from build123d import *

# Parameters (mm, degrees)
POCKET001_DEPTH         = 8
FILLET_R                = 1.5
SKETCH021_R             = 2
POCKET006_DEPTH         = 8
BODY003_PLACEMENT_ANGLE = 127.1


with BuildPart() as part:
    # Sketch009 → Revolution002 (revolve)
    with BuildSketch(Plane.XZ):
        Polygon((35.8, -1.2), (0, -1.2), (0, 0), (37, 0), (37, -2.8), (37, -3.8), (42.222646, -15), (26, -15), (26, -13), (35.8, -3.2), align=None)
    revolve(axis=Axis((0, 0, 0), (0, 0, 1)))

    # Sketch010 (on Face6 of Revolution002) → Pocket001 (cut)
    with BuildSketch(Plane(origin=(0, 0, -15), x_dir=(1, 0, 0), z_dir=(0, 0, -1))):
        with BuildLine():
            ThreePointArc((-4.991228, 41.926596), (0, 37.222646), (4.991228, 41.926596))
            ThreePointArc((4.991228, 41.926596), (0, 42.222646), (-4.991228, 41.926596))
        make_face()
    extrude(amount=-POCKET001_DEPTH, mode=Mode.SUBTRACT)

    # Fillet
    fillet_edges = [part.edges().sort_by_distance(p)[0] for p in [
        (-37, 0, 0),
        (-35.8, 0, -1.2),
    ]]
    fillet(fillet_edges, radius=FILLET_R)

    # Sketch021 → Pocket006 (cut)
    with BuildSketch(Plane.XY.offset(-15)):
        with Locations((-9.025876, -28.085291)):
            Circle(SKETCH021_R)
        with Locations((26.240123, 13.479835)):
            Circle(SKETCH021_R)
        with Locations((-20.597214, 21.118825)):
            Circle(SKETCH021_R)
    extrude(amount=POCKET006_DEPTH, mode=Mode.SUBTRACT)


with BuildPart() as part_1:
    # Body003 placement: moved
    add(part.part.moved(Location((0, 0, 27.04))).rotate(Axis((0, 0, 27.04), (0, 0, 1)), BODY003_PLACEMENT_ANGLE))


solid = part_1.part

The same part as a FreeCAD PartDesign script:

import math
import FreeCAD as App
import Part
import Sketcher
Q = App.Units.Quantity


def edges_at(feature, points):
    """Names of the edges that pass closest to the given points."""
    edges = feature.Shape.Edges
    near = lambda p: min(range(len(edges)), key=lambda i: edges[i].distToShape(Part.Vertex(*p))[0])
    return sorted({f"Edge{near(p) + 1}" for p in points})

doc = App.newDocument("Part")
params = doc.addObject("Spreadsheet::Sheet", "Params")
for row, (alias, value) in enumerate([
    ("sketch1_width", "37 mm"),
    ("sketch1_height", "2 mm"),
    ("sketch1_width2", "35.8 mm"),
    ("sketch1_height2", "3.8 mm"),
    ("sketch1_height3", "1.2 mm"),
    ("revolution_angle", "360 deg"),
    ("sketch2_radius", "5 mm"),
    ("pocket1_length", "8 mm"),
    ("fillet_radius", "1.5 mm"),
    ("sketch3_diameter", "4 mm"),
    ("pocket2_length", "8 mm"),
], start=1):
    params.set(f"A{row}", alias)
    params.set(f"B{row}", "=" + value)
    params.setAlias(f"B{row}", alias)

body = doc.addObject("PartDesign::Body", "Body")

# Sketch on XZ plane
sketch1 = body.newObject("Sketcher::SketchObject", "Sketch")
sketch1.AttachmentSupport = (doc.getObject("XZ_Plane"), [""])
sketch1.MapMode = "FlatFace"
sketch1.addGeometry([
    Part.LineSegment(App.Vector(0, -1.2, 0), App.Vector(35.8, -1.2, 0)),  # 0
    Part.LineSegment(App.Vector(35.8, -1.2, 0), App.Vector(35.8, -3.2, 0)),  # 1
    Part.LineSegment(App.Vector(35.8, -3.2, 0), App.Vector(26, -13, 0)),  # 2
    Part.LineSegment(App.Vector(26, -13, 0), App.Vector(26, -15, 0)),  # 3
    Part.LineSegment(App.Vector(26, -15, 0), App.Vector(42.2, -15, 0)),  # 4
    Part.LineSegment(App.Vector(42.2, -15, 0), App.Vector(37, -3.8, 0)),  # 5
    Part.LineSegment(App.Vector(37, -3.8, 0), App.Vector(37, 0, 0)),  # 6
    Part.LineSegment(App.Vector(37, 0, 0), App.Vector(0, 0, 0)),  # 7
    Part.LineSegment(App.Vector(0, 0, 0), App.Vector(0, -1.2, 0)),  # 8
], False)
sketch1.addConstraint([
    Sketcher.Constraint("Coincident", 0, 2, 1, 1),
    Sketcher.Constraint("Coincident", 1, 2, 2, 1),
    Sketcher.Constraint("Coincident", 2, 2, 3, 1),
    Sketcher.Constraint("Coincident", 3, 2, 4, 1),
    Sketcher.Constraint("Coincident", 4, 2, 5, 1),
    Sketcher.Constraint("Coincident", 5, 2, 6, 1),
    Sketcher.Constraint("Coincident", 6, 2, 7, 1),
    Sketcher.Constraint("Coincident", 7, 2, 8, 1),
    Sketcher.Constraint("Coincident", 8, 2, 0, 1),
    Sketcher.Constraint("Horizontal", 0),
    Sketcher.Constraint("Vertical", 1),
    Sketcher.Constraint("Vertical", 3),
    Sketcher.Constraint("Horizontal", 4),
    Sketcher.Constraint("Vertical", 6),
    Sketcher.Constraint("Horizontal", 7),
    Sketcher.Constraint("Vertical", 8),
    Sketcher.Constraint("Coincident", 7, 2, -1, 1),
    Sketcher.Constraint("Equal", 1, 3),
    Sketcher.Constraint("DistanceX", 7, 2, 7, 1, 37.0),
    Sketcher.Constraint("DistanceY", 1, 2, 1, 1, 2.0),
    Sketcher.Constraint("Angle", 2, Q("-135 deg")),
    Sketcher.Constraint("Angle", 5, Q("115.000001 deg")),
    Sketcher.Constraint("DistanceX", 0, 1, 0, 2, 35.8),
    Sketcher.Constraint("DistanceY", 6, 1, 6, 2, 3.8),
    Sketcher.Constraint("DistanceY", 8, 2, 8, 1, 1.2),
    Sketcher.Constraint("DistanceX", -1, 1, 2, 2, 26.0),
])
sketch1.setExpression("Constraints[18]", "Params.sketch1_width")
sketch1.setExpression("Constraints[19]", "Params.sketch1_height")
sketch1.setExpression("Constraints[22]", "Params.sketch1_width2")
sketch1.setExpression("Constraints[23]", "Params.sketch1_height2")
sketch1.setExpression("Constraints[24]", "Params.sketch1_height3")
revolution = body.newObject("PartDesign::Revolution", "Revolution")
revolution.Profile = sketch1
revolution.ReferenceAxis = (sketch1, ["V_Axis"])
revolution.setExpression("Angle", "Params.revolution_angle")

# Sketch on XY plane
sketch2 = body.newObject("Sketcher::SketchObject", "Sketch001")
sketch2.AttachmentSupport = (doc.getObject("XY_Plane"), [""])
sketch2.MapMode = "FlatFace"
sketch2.AttachmentOffset = App.Placement(App.Vector(0, 0, -15), App.Rotation())
sketch2.addGeometry([
    Part.ArcOfCircle(Part.Circle(App.Vector(0, -42, 0), App.Vector(0, 0, 1), 5), math.radians(3), math.radians(177)),
    Part.ArcOfCircle(Part.Circle(App.Vector(0, 0, 0), App.Vector(0, 0, 1), 42), math.radians(-96.79), math.radians(-83.21)),
], False)
sketch2.addConstraint([
    Sketcher.Constraint("Coincident", 0, 1, 1, 2),
    Sketcher.Constraint("Coincident", 1, 1, 0, 2),
    Sketcher.Constraint("Symmetric", 0, 1, 1, 1, -2),
    Sketcher.Constraint("Radius", 0, 5.0),
    Sketcher.Constraint("Radius", 1, 42.222602),
    Sketcher.Constraint("DistanceY", 0, 3, 0, 1, 0.29605),
    Sketcher.Constraint("DistanceY", 0, 3, -1, 1, 42.222646),
])
sketch2.setExpression("Constraints[3]", "Params.sketch2_radius")
pocket1 = body.newObject("PartDesign::Pocket", "Pocket")
pocket1.Profile = sketch2
pocket1.setExpression("Length", "Params.pocket1_length")
pocket1.Reversed = True
doc.recompute()

fillet = body.newObject("PartDesign::Fillet", "Fillet")
fillet.Base = (pocket1, edges_at(pocket1, [(-37, 0, 0), (-35.8, 0, -1.2)]))
fillet.setExpression("Radius", "Params.fillet_radius")

# Sketch on XY plane
sketch3 = body.newObject("Sketcher::SketchObject", "Sketch002")
sketch3.AttachmentSupport = (doc.getObject("XY_Plane"), [""])
sketch3.MapMode = "FlatFace"
sketch3.AttachmentOffset = App.Placement(App.Vector(0, 0, -15), App.Rotation())
sketch3.addGeometry([
    Part.Circle(App.Vector(-9, -28.1, 0), App.Vector(0, 0, 1), 2),
    Part.Circle(App.Vector(26.2, 13.5, 0), App.Vector(0, 0, 1), 2),
    Part.Circle(App.Vector(-20.6, 21.1, 0), App.Vector(0, 0, 1), 2),
], False)
sketch3.addConstraint([
    Sketcher.Constraint("Equal", 0, 1),
    Sketcher.Constraint("Equal", 1, 2),
    Sketcher.Constraint("Diameter", 0, 4.0),
    Sketcher.Constraint("DistanceX", 0, 3, 1, 3, 35.265999),
    Sketcher.Constraint("DistanceY", 0, 3, -1, 1, 28.085291),
    Sketcher.Constraint("DistanceY", 1, 3, 2, 3, 7.63899),
    Sketcher.Constraint("DistanceX", 2, 3, 0, 3, 11.571338),
    Sketcher.Constraint("DistanceX", 0, 3, -1, 1, 9.025876),
    Sketcher.Constraint("DistanceY", -1, 1, 1, 3, 13.479835),
])
sketch3.setExpression("Constraints[2]", "Params.sketch3_diameter")
pocket2 = body.newObject("PartDesign::Pocket", "Pocket001")
pocket2.Profile = sketch3
pocket2.setExpression("Length", "Params.pocket2_length")
pocket2.Reversed = True
body2 = doc.addObject("PartDesign::Body", "Body001")
doc.recompute()

body.Placement = App.Placement(App.Vector(0, 0, 27.04), App.Rotation(App.Vector(0, 0, 1), 127.1))
boolean = body2.newObject("PartDesign::Boolean", "Boolean")
boolean.Type = "Fuse"
boolean.addObjects([body])

doc.recompute()
